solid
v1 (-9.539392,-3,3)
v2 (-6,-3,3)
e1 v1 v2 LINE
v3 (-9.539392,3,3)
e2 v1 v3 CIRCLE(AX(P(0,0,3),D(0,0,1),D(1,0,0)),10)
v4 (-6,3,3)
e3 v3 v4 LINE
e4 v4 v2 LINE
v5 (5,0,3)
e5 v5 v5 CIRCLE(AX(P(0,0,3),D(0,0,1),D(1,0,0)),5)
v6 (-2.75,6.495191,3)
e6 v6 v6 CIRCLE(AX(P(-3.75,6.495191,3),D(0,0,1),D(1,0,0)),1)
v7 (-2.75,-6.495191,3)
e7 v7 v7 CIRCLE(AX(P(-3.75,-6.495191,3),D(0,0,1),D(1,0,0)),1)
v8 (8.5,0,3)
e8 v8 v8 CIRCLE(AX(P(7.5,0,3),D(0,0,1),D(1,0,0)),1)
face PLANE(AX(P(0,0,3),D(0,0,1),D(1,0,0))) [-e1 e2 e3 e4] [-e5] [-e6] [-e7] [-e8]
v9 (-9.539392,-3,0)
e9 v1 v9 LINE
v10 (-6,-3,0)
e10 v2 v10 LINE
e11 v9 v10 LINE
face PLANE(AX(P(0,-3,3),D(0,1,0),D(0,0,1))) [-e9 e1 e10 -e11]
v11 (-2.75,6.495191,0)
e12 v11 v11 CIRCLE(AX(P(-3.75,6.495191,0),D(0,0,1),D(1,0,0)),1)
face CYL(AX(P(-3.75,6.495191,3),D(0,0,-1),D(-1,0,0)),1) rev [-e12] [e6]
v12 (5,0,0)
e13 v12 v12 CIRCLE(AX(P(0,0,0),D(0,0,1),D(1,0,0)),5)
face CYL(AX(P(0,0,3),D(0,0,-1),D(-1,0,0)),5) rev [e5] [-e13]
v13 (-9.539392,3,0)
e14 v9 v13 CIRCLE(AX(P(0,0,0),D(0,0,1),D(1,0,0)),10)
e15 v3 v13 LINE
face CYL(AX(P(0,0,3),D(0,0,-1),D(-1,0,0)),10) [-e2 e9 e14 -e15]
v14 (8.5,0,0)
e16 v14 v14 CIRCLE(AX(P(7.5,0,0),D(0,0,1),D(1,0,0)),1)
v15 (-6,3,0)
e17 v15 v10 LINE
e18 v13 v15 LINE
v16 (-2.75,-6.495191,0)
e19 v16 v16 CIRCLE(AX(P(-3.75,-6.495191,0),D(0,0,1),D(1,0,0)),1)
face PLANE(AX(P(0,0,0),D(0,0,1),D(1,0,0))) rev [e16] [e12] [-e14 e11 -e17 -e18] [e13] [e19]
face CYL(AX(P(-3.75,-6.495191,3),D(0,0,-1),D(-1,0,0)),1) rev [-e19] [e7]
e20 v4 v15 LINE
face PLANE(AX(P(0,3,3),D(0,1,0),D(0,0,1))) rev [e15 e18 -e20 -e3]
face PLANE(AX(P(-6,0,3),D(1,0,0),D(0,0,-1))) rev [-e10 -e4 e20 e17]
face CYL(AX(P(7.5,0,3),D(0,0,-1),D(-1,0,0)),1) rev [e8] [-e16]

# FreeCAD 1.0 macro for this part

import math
import FreeCAD as App
import Part
import Sketcher
Q = App.Units.Quantity

doc = App.newDocument("Part")
params = doc.addObject("Spreadsheet::Sheet", "Params")
for row, (alias, value) in enumerate([
    ("sketch1_diameter", "2 mm"),
    ("sketch1_diameter2", "10 mm"),
    ("sketch1_radius", "10 mm"),
    ("sketch1_height", "6 mm"),
    ("pad1_length", "3 mm"),
], start=1):
    params.set(f"A{row}", alias)
    params.set(f"B{row}", "=" + value)
    params.setAlias(f"B{row}", alias)

body = doc.addObject("PartDesign::Body", "Body")

sketch1 = doc.addObject("Sketcher::SketchObject", "Sketch")
body.addObject(sketch1)
sketch1.AttachmentSupport = (doc.XY_Plane, [""])
sketch1.MapMode = "FlatFace"
sketch1.addGeometry(Part.LineSegment(App.Vector(-9.5, 3, 0), App.Vector(-6, 3, 0)), False)
sketch1.addGeometry(Part.LineSegment(App.Vector(-6, 3, 0), App.Vector(-6, -3, 0)), False)
sketch1.addGeometry(Part.LineSegment(App.Vector(-6, -3, 0), App.Vector(-9.5, -3, 0)), False)
sketch1.addGeometry(Part.ArcOfCircle(Part.Circle(App.Vector(0, 0, 0), App.Vector(0, 0, 1), 10), math.radians(-163), math.radians(163)), False)
sketch1.addGeometry(Part.Circle(App.Vector(-3.8, -6.5, 0), App.Vector(0, 0, 1), 1), False)
sketch1.addGeometry(Part.Circle(App.Vector(0, 0, 0), App.Vector(0, 0, 1), 5), False)
sketch1.addGeometry(Part.Circle(App.Vector(-3.8, 6.5, 0), App.Vector(0, 0, 1), 1), False)
sketch1.addGeometry(Part.Circle(App.Vector(7.5, 0, 0), App.Vector(0, 0, 1), 1), False)
sketch1.addConstraint(Sketcher.Constraint("Coincident", 0, 2, 1, 1))
sketch1.addConstraint(Sketcher.Constraint("Coincident", 1, 2, 2, 1))
sketch1.addConstraint(Sketcher.Constraint("Coincident", 2, 2, 3, 1))
sketch1.addConstraint(Sketcher.Constraint("Coincident", 3, 2, 0, 1))
sketch1.addConstraint(Sketcher.Constraint("Horizontal", 0))
sketch1.addConstraint(Sketcher.Constraint("Vertical", 1))
sketch1.addConstraint(Sketcher.Constraint("Horizontal", 2))
sketch1.addConstraint(Sketcher.Constraint("Coincident", 3, 3, -1, 1))
sketch1.addConstraint(Sketcher.Constraint("Coincident", 5, 3, -1, 1))
sketch1.addConstraint(Sketcher.Constraint("Equal", 4, 6))
sketch1.addConstraint(Sketcher.Constraint("Equal", 6, 7))
sketch1.addConstraint(Sketcher.Constraint("Symmetric", 4, 3, 6, 3, -1))
sketch1.addConstraint(Sketcher.Constraint("PointOnObject", 7, 3, -1))
sketch1.addConstraint(Sketcher.Constraint("Vertical", 2, 2, 3, 2))
sketch1.addConstraint(Sketcher.Constraint("Diameter", 4, Q("2 mm")))
sketch1.addConstraint(Sketcher.Constraint("Diameter", 5, Q("10 mm")))
sketch1.addConstraint(Sketcher.Constraint("Radius", 3, Q("10 mm")))
sketch1.addConstraint(Sketcher.Constraint("DistanceY", 1, 2, 1, 1, Q("6 mm")))
sketch1.addConstraint(Sketcher.Constraint("DistanceX", 0, 2, -1, 1, Q("6 mm")))
sketch1.addConstraint(Sketcher.Constraint("DistanceX", -1, 1, 7, 3, Q("7.5 mm")))
sketch1.addConstraint(Sketcher.Constraint("DistanceX", 4, 3, -1, 1, Q("3.75 mm")))
sketch1.addConstraint(Sketcher.Constraint("DistanceY", 4, 3, -1, 1, Q("6.495191 mm")))
sketch1.setExpression("Constraints[14]", "Params.sketch1_diameter")
sketch1.setExpression("Constraints[15]", "Params.sketch1_diameter2")
sketch1.setExpression("Constraints[16]", "Params.sketch1_radius")
sketch1.setExpression("Constraints[17]", "Params.sketch1_height")
pad1 = doc.addObject("PartDesign::Pad", "Pad")
body.addObject(pad1)
pad1.Profile = sketch1
pad1.setExpression("Length", "Params.pad1_length")

doc.recompute()
